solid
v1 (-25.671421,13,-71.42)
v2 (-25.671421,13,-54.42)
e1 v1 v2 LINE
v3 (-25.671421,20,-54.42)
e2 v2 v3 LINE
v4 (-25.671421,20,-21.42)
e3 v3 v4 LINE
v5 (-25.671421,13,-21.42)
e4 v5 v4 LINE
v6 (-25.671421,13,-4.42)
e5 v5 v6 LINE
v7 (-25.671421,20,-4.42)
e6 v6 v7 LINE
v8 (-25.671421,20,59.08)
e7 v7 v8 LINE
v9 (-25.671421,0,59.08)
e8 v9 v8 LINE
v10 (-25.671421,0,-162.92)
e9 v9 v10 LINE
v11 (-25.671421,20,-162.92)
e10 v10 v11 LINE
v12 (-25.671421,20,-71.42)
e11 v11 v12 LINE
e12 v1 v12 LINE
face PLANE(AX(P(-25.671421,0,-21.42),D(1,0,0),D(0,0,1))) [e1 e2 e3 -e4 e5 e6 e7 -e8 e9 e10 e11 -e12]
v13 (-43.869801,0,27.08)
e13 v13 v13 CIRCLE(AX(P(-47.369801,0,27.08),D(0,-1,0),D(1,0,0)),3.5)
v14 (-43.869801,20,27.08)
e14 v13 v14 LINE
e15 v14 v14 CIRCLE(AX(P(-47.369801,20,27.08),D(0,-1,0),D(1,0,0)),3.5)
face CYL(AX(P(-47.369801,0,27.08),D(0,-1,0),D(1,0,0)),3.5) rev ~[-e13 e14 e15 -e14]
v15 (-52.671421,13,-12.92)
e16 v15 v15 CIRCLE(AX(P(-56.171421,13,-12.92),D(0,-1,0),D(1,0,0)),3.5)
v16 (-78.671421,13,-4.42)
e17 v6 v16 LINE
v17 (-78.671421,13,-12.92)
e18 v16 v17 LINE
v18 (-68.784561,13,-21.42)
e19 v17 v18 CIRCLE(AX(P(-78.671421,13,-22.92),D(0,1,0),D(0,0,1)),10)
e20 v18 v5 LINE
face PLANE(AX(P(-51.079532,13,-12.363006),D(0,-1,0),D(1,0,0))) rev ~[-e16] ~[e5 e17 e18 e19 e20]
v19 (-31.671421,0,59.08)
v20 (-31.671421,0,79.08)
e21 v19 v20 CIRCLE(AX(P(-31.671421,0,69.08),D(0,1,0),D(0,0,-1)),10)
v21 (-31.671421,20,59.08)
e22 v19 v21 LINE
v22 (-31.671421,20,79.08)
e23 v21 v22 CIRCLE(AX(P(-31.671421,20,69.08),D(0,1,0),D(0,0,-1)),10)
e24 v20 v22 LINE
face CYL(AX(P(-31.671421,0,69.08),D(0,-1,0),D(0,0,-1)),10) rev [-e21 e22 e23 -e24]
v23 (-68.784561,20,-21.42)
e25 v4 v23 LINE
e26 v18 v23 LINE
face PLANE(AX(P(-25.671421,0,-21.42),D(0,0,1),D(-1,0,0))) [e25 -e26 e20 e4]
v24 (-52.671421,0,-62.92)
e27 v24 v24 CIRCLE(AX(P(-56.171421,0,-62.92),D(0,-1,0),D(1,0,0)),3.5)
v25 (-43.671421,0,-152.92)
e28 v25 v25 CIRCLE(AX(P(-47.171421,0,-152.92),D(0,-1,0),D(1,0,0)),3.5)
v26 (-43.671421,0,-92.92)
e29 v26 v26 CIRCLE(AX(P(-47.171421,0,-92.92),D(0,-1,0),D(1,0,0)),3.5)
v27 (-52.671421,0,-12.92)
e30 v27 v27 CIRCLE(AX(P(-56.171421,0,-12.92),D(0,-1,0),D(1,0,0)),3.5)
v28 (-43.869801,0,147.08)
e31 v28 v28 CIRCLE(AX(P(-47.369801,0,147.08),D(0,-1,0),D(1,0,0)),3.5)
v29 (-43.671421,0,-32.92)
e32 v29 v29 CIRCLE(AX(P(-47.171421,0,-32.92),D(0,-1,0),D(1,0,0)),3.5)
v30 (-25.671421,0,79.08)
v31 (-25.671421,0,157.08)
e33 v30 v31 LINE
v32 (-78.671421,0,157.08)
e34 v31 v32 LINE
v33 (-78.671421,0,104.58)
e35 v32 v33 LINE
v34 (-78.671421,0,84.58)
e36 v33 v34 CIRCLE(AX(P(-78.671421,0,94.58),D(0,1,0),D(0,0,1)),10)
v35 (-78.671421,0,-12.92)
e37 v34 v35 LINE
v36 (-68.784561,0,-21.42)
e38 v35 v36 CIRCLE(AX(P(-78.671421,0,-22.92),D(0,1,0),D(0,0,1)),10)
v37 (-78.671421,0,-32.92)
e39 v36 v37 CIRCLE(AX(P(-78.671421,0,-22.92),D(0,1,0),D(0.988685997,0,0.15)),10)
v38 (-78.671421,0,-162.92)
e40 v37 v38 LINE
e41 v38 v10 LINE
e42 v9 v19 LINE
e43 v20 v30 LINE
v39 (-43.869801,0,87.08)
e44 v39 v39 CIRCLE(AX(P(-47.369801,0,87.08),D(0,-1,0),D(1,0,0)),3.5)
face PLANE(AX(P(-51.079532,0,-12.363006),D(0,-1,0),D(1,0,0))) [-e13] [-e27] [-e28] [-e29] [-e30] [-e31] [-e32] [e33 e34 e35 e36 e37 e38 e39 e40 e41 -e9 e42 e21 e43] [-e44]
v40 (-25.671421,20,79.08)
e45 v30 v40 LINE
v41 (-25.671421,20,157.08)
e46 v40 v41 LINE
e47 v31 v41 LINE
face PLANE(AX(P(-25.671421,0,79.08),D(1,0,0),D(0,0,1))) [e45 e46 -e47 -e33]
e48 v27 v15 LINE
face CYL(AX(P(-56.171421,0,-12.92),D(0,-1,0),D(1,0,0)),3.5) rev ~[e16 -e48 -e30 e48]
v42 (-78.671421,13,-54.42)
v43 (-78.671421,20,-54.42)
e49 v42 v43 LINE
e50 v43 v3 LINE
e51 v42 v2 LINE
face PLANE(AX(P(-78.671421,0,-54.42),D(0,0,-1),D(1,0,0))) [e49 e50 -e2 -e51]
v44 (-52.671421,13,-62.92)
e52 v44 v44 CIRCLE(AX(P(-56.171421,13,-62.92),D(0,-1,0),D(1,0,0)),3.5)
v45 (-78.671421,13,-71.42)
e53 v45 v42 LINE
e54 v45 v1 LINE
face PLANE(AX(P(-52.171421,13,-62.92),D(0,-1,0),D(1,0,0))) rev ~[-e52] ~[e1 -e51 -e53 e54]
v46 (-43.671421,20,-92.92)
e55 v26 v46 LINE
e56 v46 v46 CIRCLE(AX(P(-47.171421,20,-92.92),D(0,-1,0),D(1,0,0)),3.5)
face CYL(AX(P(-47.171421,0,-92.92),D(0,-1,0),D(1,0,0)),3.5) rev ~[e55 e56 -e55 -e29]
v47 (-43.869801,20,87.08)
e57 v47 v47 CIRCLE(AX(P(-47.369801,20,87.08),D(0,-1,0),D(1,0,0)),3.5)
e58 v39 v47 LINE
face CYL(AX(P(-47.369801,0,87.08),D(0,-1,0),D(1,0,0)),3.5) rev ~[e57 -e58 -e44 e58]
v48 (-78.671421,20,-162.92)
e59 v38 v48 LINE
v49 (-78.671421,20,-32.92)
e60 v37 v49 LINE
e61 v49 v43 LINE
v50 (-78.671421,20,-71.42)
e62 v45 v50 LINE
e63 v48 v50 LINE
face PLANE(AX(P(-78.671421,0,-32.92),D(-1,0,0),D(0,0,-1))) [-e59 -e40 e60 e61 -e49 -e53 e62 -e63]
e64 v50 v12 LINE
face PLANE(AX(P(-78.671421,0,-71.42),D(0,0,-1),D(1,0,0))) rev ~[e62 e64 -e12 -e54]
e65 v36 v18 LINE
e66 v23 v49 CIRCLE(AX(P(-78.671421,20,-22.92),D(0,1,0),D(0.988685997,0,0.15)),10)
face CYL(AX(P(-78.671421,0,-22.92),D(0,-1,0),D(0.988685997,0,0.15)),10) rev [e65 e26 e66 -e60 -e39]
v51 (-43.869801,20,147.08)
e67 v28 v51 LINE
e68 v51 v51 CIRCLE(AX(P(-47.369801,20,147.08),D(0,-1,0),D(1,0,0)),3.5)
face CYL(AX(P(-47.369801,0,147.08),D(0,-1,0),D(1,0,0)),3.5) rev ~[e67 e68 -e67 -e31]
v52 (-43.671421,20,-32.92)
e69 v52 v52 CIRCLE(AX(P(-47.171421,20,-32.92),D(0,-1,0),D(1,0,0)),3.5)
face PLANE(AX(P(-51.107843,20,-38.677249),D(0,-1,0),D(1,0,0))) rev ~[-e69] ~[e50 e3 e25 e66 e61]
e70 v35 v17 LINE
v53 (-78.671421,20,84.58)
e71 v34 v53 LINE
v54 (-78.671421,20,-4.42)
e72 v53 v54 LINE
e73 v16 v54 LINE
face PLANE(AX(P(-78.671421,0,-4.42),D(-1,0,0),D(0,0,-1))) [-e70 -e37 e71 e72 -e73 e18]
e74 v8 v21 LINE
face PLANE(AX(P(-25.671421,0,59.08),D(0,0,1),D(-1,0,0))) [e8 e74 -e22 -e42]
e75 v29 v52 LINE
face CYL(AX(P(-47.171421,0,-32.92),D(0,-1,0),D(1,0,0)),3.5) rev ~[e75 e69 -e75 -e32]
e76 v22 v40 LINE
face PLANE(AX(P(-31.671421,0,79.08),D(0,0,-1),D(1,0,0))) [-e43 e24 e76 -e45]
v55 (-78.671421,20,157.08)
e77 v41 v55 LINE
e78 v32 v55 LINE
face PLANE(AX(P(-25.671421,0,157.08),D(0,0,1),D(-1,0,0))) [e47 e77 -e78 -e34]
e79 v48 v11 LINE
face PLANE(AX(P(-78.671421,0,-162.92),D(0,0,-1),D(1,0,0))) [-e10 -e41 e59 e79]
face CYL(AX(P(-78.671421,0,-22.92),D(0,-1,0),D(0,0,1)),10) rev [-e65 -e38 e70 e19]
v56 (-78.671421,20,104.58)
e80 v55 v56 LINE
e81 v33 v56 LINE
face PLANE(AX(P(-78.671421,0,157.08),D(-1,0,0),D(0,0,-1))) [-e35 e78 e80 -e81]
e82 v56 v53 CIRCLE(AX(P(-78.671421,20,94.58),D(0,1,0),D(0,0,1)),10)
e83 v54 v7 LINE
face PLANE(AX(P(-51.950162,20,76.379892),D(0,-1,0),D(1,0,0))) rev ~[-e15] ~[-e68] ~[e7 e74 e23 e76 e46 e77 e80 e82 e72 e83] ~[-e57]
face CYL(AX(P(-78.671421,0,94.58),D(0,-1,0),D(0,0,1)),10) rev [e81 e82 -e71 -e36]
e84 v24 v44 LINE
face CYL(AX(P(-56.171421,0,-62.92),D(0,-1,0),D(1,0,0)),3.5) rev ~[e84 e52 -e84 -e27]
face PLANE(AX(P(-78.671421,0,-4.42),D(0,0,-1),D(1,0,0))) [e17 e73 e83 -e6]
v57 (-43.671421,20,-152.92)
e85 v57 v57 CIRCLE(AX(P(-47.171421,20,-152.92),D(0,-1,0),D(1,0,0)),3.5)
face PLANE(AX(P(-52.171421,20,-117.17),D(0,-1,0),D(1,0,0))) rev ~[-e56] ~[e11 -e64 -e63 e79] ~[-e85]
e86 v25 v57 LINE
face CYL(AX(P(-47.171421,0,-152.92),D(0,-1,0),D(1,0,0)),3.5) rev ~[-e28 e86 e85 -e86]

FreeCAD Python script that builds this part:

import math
import FreeCAD as App
import Part
import Sketcher
from FreeCAD import Vector
Q = App.Units.Quantity


def add_polygon(sketch, points):
    """Adds a closed chain of lines whose ends are joined by coincident constraints."""
    first, n = sketch.GeometryCount, len(points)
    for a, b in zip(points, points[1:] + points[:1]):
        sketch.addGeometry(Part.LineSegment(App.Vector(*a, 0), App.Vector(*b, 0)), False)
    for i in range(n):
        sketch.addConstraint(Sketcher.Constraint("Coincident", first + i, 2, first + (i + 1) % n, 1))

doc = App.newDocument("Part")
body = doc.addObject("PartDesign::Body", "Body")

sketch1 = doc.addObject("Sketcher::SketchObject", "Sketch")
body.addObject(sketch1)
sketch1.AttachmentSupport = (doc.XZ_Plane, [""])
sketch1.MapMode = "FlatFace"
sketch1.addGeometry([
    Part.LineSegment(Vector(-25.7, 79.1, 0), Vector(-25.7, 157.1, 0)),
    Part.LineSegment(Vector(-25.7, 157.1, 0), Vector(-78.7, 157.1, 0)),
    Part.LineSegment(Vector(-78.7, 157.1, 0), Vector(-78.7, 104.6, 0)),
    Part.ArcOfCircle(Part.Circle(Vector(-78.7, 94.6, 0), Vector(0, 0, 1), 10), math.radians(-90), math.radians(90)),
    Part.LineSegment(Vector(-78.7, 84.6, 0), Vector(-78.7, -4.4, 0)),
    Part.LineSegment(Vector(-78.7, -4.4, 0), Vector(-25.7, -4.4, 0)),
    Part.LineSegment(Vector(-25.7, -4.4, 0), Vector(-25.7, 59.1, 0)),
    Part.LineSegment(Vector(-25.7, 59.1, 0), Vector(-31.7, 59.1, 0)),
    Part.ArcOfCircle(Part.Circle(Vector(-31.7, 69.1, 0), Vector(0, 0, 1), 10), math.radians(90), math.radians(270)),
    Part.LineSegment(Vector(-31.7, 79.1, 0), Vector(-25.7, 79.1, 0)),
    Part.Circle(Vector(-47.4, 27.1, 0), Vector(0, 0, 1), 3.5),
    Part.Circle(Vector(-47.4, 87.1, 0), Vector(0, 0, 1), 3.5),
    Part.Circle(Vector(-47.4, 147.1, 0), Vector(0, 0, 1), 3.5),
], False)
sketch1.addConstraint([
    Sketcher.Constraint("Coincident", 0, 2, 1, 1),
    Sketcher.Constraint("Coincident", 1, 2, 2, 1),
    Sketcher.Constraint("Coincident", 2, 2, 3, 2),
    Sketcher.Constraint("Coincident", 3, 1, 4, 1),
    Sketcher.Constraint("Coincident", 4, 2, 5, 1),
    Sketcher.Constraint("Coincident", 5, 2, 6, 1),
    Sketcher.Constraint("Coincident", 6, 2, 7, 1),
    Sketcher.Constraint("Tangent", 7, 2, 8, 2),
    Sketcher.Constraint("Tangent", 8, 1, 9, 1),
    Sketcher.Constraint("Coincident", 9, 2, 0, 1),
    Sketcher.Constraint("Vertical", 0),
    Sketcher.Constraint("Horizontal", 1),
    Sketcher.Constraint("Vertical", 2),
    Sketcher.Constraint("Vertical", 4),
    Sketcher.Constraint("Horizontal", 5),
    Sketcher.Constraint("Vertical", 6),
    Sketcher.Constraint("Horizontal", 7),
    Sketcher.Constraint("Horizontal", 9),
    Sketcher.Constraint("Equal", 3, 8),
    Sketcher.Constraint("Equal", 10, 11),
    Sketcher.Constraint("Equal", 11, 12),
    Sketcher.Constraint("Vertical", 10, 3, 11, 3),
    Sketcher.Constraint("Vertical", 11, 3, 12, 3),
    Sketcher.Constraint("Vertical", 3, 3, 1, 2),
    Sketcher.Constraint("Vertical", 2, 2, 3, 1),
    Sketcher.Constraint("Vertical", 0, 2, 5, 2),
    Sketcher.Constraint("Diameter", 10, Q("7 mm")),
    Sketcher.Constraint("Radius", 3, Q("10 mm")),
    Sketcher.Constraint("DistanceX", 1, 2, 1, 1, Q("53 mm")),
    Sketcher.Constraint("DistanceX", 7, 2, 7, 1, Q("6 mm")),
    Sketcher.Constraint("DistanceY", 0, 1, 0, 2, Q("78 mm")),
    Sketcher.Constraint("DistanceY", 4, 2, 4, 1, Q("89 mm")),
    Sketcher.Constraint("DistanceY", 2, 2, 2, 1, Q("52.5 mm")),
    Sketcher.Constraint("DistanceY", 10, 3, 8, 3, Q("42 mm")),
    Sketcher.Constraint("DistanceY", 8, 3, 11, 3, Q("18 mm")),
    Sketcher.Constraint("DistanceY", 11, 3, 12, 3, Q("60 mm")),
    Sketcher.Constraint("DistanceY", -1, 1, 3, 3, Q("94.58 mm")),
    Sketcher.Constraint("DistanceX", 10, 3, -1, 1, Q("47.369801 mm")),
    Sketcher.Constraint("DistanceX", 3, 3, -1, 1, Q("78.671421 mm")),
])
pad1 = doc.addObject("PartDesign::Pad", "Pad")
body.addObject(pad1)
pad1.Profile = sketch1
pad1.Length = 20
pad1.Reversed = True
body2 = doc.addObject("PartDesign::Body", "Body001")

sketch2 = doc.addObject("Sketcher::SketchObject", "Sketch001")
body2.addObject(sketch2)
sketch2.AttachmentSupport = (doc.getObject("XZ_Plane001"), [""])
sketch2.MapMode = "FlatFace"
sketch2.addGeometry([
    Part.LineSegment(Vector(-25.7, -54.4, 0), Vector(-25.7, -21.4, 0)),
    Part.LineSegment(Vector(-25.7, -21.4, 0), Vector(-68.8, -21.4, 0)),
    Part.ArcOfCircle(Part.Circle(Vector(-78.7, -22.9, 0), Vector(0, 0, 1), 10), math.radians(-90), math.radians(9)),
    Part.LineSegment(Vector(-78.7, -32.9, 0), Vector(-78.7, -54.4, 0)),
    Part.LineSegment(Vector(-78.7, -54.4, 0), Vector(-25.7, -54.4, 0)),
    Part.Circle(Vector(-47.2, -32.9, 0), Vector(0, 0, 1), 3.5),
], False)
sketch2.addConstraint([
    Sketcher.Constraint("Coincident", 0, 2, 1, 1),
    Sketcher.Constraint("Coincident", 1, 2, 2, 2),
    Sketcher.Constraint("Coincident", 2, 1, 3, 1),
    Sketcher.Constraint("Coincident", 3, 2, 4, 1),
    Sketcher.Constraint("Coincident", 4, 2, 0, 1),
    Sketcher.Constraint("Vertical", 0),
    Sketcher.Constraint("Horizontal", 1),
    Sketcher.Constraint("Vertical", 3),
    Sketcher.Constraint("Horizontal", 4),
    Sketcher.Constraint("Horizontal", 5, 3, 2, 1),
    Sketcher.Constraint("Diameter", 5, Q("7 mm")),
    Sketcher.Constraint("Radius", 2, Q("10 mm")),
    Sketcher.Constraint("DistanceX", 4, 1, 4, 2, Q("53 mm")),
    Sketcher.Constraint("DistanceY", 0, 1, 0, 2, Q("33 mm")),
    Sketcher.Constraint("DistanceY", 3, 2, 3, 1, Q("21.5 mm")),
    Sketcher.Constraint("DistanceX", 2, 3, 0, 2, Q("53 mm")),
    Sketcher.Constraint("DistanceX", 2, 3, 5, 3, Q("31.5 mm")),
    Sketcher.Constraint("DistanceY", 2, 3, -1, 1, Q("22.92 mm")),
    Sketcher.Constraint("DistanceX", 2, 3, -1, 1, Q("78.671421 mm")),
])
pad2 = doc.addObject("PartDesign::Pad", "Pad001")
body2.addObject(pad2)
pad2.Profile = sketch2
pad2.Length = 20
pad2.Reversed = True
body3 = doc.addObject("PartDesign::Body", "Body002")

sketch3 = doc.addObject("Sketcher::SketchObject", "Sketch002")
body3.addObject(sketch3)
sketch3.AttachmentSupport = (doc.getObject("XZ_Plane002"), [""])
sketch3.MapMode = "FlatFace"
add_polygon(sketch3, [(-78.7, -71.4), (-78.7, -162.9), (-25.7, -162.9), (-25.7, -71.4)])
sketch3.addGeometry(Part.Circle(Vector(-47.2, -152.9, 0), Vector(0, 0, 1), 3.5), False)
sketch3.addGeometry(Part.Circle(Vector(-47.2, -92.9, 0), Vector(0, 0, 1), 3.5), False)
sketch3.addConstraint([
    Sketcher.Constraint("Vertical", 0),
    Sketcher.Constraint("Horizontal", 1),
    Sketcher.Constraint("Vertical", 2),
    Sketcher.Constraint("Horizontal", 3),
    Sketcher.Constraint("Equal", 4, 5),
    Sketcher.Constraint("Vertical", 4, 3, 5, 3),
    Sketcher.Constraint("Diameter", 4, Q("7 mm")),
    Sketcher.Constraint("DistanceX", 1, 1, 1, 2, Q("53 mm")),
    Sketcher.Constraint("DistanceY", 0, 2, 0, 1, Q("91.5 mm")),
    Sketcher.Constraint("DistanceY", 4, 3, 5, 3, Q("60 mm")),
    Sketcher.Constraint("DistanceY", 0, 2, 4, 3, Q("10 mm")),
    Sketcher.Constraint("DistanceX", 0, 2, 4, 3, Q("31.5 mm")),
    Sketcher.Constraint("DistanceY", 4, 3, -1, 1, Q("152.92 mm")),
    Sketcher.Constraint("DistanceX", 4, 3, -1, 1, Q("47.171421 mm")),
])
pad3 = doc.addObject("PartDesign::Pad", "Pad002")
body3.addObject(pad3)
pad3.Profile = sketch3
pad3.Length = 20
pad3.Reversed = True
body.AllowCompound = True
doc.recompute()

boolean = doc.addObject("PartDesign::Boolean", "Boolean")
body.addObject(boolean)
boolean.Type = "Fuse"
boolean.addObjects([body2])
doc.recompute()

boolean2 = doc.addObject("PartDesign::Boolean", "Boolean001")
body.addObject(boolean2)
boolean2.Type = "Fuse"
boolean2.addObjects([body3])

sketch4 = doc.addObject("Sketcher::SketchObject", "Sketch003")
body.addObject(sketch4)
sketch4.AttachmentSupport = (doc.XZ_Plane, [""])
sketch4.MapMode = "FlatFace"
sketch4.addGeometry(Part.LineSegment(Vector(-25.7, -21.4, 0), Vector(-25.7, -4.4, 0)), False)
sketch4.addGeometry(Part.LineSegment(Vector(-25.7, -4.4, 0), Vector(-78.7, -4.4, 0)), False)
sketch4.addGeometry(Part.LineSegment(Vector(-78.7, -4.4, 0), Vector(-78.7, -12.9, 0)), False)
sketch4.addGeometry(Part.ArcOfCircle(Part.Circle(Vector(-78.7, -22.9, 0), Vector(0, 0, 1), 10), math.radians(9), math.radians(90)), False)
sketch4.addGeometry(Part.LineSegment(Vector(-68.8, -21.4, 0), Vector(-25.7, -21.4, 0)), False)
sketch4.addGeometry(Part.Circle(Vector(-56.2, -12.9, 0), Vector(0, 0, 1), 3.5), False)
add_polygon(sketch4, [(-78.7, -54.4), (-78.7, -71.4), (-25.7, -71.4), (-25.7, -54.4)])
sketch4.addGeometry(Part.Circle(Vector(-56.2, -62.9, 0), Vector(0, 0, 1), 3.5), False)
sketch4.addConstraint([
    Sketcher.Constraint("Coincident", 0, 2, 1, 1),
    Sketcher.Constraint("Coincident", 1, 2, 2, 1),
    Sketcher.Constraint("Coincident", 2, 2, 3, 2),
    Sketcher.Constraint("Coincident", 3, 1, 4, 1),
    Sketcher.Constraint("Coincident", 4, 2, 0, 1),
    Sketcher.Constraint("Vertical", 0),
    Sketcher.Constraint("Horizontal", 1),
    Sketcher.Constraint("Vertical", 2),
    Sketcher.Constraint("Horizontal", 4),
    Sketcher.Constraint("Vertical", 6),
    Sketcher.Constraint("Horizontal", 7),
    Sketcher.Constraint("Vertical", 8),
    Sketcher.Constraint("Horizontal", 9),
    Sketcher.Constraint("Equal", 5, 10),
    Sketcher.Constraint("Horizontal", 5, 3, 2, 2),
    Sketcher.Constraint("Vertical", 5, 3, 10, 3),
    Sketcher.Constraint("Vertical", 3, 3, 1, 2),
    Sketcher.Constraint("Vertical", 2, 2, 6, 2),
    Sketcher.Constraint("Vertical", 4, 2, 7, 2),
    Sketcher.Constraint("Equal", 0, 6),
    Sketcher.Constraint("Diameter", 5, Q("7 mm")),
    Sketcher.Constraint("Radius", 3, Q("10 mm")),
    Sketcher.Constraint("DistanceX", 1, 2, 1, 1, Q("53 mm")),
    Sketcher.Constraint("DistanceY", 0, 1, 0, 2, Q("17 mm")),
    Sketcher.Constraint("DistanceY", 2, 2, 2, 1, Q("8.5 mm")),
    Sketcher.Constraint("DistanceY", 10, 3, 3, 3, Q("40 mm")),
    Sketcher.Constraint("DistanceY", 6, 2, 3, 1, Q("50 mm")),
    Sketcher.Constraint("DistanceX", 3, 3, 5, 3, Q("22.5 mm")),
    Sketcher.Constraint("DistanceY", 3, 3, -1, 1, Q("22.92 mm")),
    Sketcher.Constraint("DistanceX", 3, 3, -1, 1, Q("78.671421 mm")),
])
pad4 = doc.addObject("PartDesign::Pad", "Pad003")
body.addObject(pad4)
pad4.Profile = sketch4
pad4.Length = 13
pad4.Reversed = True

doc.recompute()
